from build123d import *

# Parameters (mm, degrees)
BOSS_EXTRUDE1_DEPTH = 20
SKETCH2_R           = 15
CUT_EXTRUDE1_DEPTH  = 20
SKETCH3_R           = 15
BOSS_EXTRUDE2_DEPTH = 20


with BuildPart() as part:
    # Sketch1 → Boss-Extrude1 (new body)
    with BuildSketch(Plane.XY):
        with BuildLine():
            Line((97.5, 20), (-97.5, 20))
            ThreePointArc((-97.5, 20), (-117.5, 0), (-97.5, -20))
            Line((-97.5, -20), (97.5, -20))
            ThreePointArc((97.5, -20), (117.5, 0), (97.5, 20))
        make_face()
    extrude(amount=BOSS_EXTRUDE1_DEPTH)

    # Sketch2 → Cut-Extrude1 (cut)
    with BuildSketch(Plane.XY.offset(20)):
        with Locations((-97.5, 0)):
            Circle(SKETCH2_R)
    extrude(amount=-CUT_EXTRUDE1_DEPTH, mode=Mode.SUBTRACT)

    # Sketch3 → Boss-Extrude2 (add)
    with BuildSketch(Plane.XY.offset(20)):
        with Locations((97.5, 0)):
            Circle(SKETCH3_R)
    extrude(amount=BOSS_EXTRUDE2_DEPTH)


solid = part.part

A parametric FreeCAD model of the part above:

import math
import FreeCAD as App
import Part
import Sketcher

doc = App.newDocument("Part")
body = doc.addObject("PartDesign::Body", "Body")

# Sketch on XY plane
sketch1 = doc.addObject("Sketcher::SketchObject", "Sketch")
body.addObject(sketch1)
sketch1.AttachmentSupport = (doc.XY_Plane, [""])
sketch1.MapMode = "FlatFace"
sketch1.addGeometry([
    Part.LineSegment(App.Vector(98, 20, 0), App.Vector(-98, 20, 0)),
    Part.ArcOfCircle(Part.Circle(App.Vector(-98, 0, 0), App.Vector(0, 0, 1), 20), math.radians(90), math.radians(270)),
    Part.LineSegment(App.Vector(-98, -20, 0), App.Vector(98, -20, 0)),
    Part.ArcOfCircle(Part.Circle(App.Vector(98, 0, 0), App.Vector(0, 0, 1), 20), math.radians(-90), math.radians(90)),
], False)
sketch1.addConstraint([
    Sketcher.Constraint("Tangent", 0, 2, 1, 1),
    Sketcher.Constraint("Tangent", 1, 2, 2, 1),
    Sketcher.Constraint("Tangent", 2, 2, 3, 1),
    Sketcher.Constraint("Tangent", 3, 2, 0, 1),
    Sketcher.Constraint("Horizontal", 0),
    Sketcher.Constraint("Horizontal", 2),
    Sketcher.Constraint("Symmetric", 1, 3, 3, 3, -1, 1),
    Sketcher.Constraint("Radius", 1, 20.0),
    Sketcher.Constraint("DistanceX", 0, 2, 0, 1, 195.0),
])
pad1 = doc.addObject("PartDesign::Pad", "Pad")
body.addObject(pad1)
pad1.Profile = sketch1
pad1.Length = 20

# Sketch on XY plane
sketch2 = doc.addObject("Sketcher::SketchObject", "Sketch001")
body.addObject(sketch2)
sketch2.AttachmentSupport = (doc.XY_Plane, [""])
sketch2.MapMode = "FlatFace"
sketch2.AttachmentOffset = App.Placement(App.Vector(0, 0, 20), App.Rotation())
sketch2.addGeometry(Part.Circle(App.Vector(-98, 0, 0), App.Vector(0, 0, 1), 15), False)
sketch2.addConstraint([
    Sketcher.Constraint("PointOnObject", 0, 3, -1),
    Sketcher.Constraint("Diameter", 0, 30.0),
    Sketcher.Constraint("DistanceX", 0, 3, -1, 1, 97.5),
])
pocket1 = doc.addObject("PartDesign::Pocket", "Pocket")
body.addObject(pocket1)
pocket1.Profile = sketch2
pocket1.Length = 20

# Sketch on XY plane
sketch3 = doc.addObject("Sketcher::SketchObject", "Sketch002")
body.addObject(sketch3)
sketch3.AttachmentSupport = (doc.XY_Plane, [""])
sketch3.MapMode = "FlatFace"
sketch3.AttachmentOffset = App.Placement(App.Vector(0, 0, 20), App.Rotation())
sketch3.addGeometry(Part.Circle(App.Vector(98, 0, 0), App.Vector(0, 0, 1), 15), False)
sketch3.addConstraint([
    Sketcher.Constraint("PointOnObject", 0, 3, -1),
    Sketcher.Constraint("Diameter", 0, 30.0),
    Sketcher.Constraint("DistanceX", -1, 1, 0, 3, 97.5),
])
pad2 = doc.addObject("PartDesign::Pad", "Pad001")
body.addObject(pad2)
pad2.Profile = sketch3
pad2.Length = 20

doc.recompute()
